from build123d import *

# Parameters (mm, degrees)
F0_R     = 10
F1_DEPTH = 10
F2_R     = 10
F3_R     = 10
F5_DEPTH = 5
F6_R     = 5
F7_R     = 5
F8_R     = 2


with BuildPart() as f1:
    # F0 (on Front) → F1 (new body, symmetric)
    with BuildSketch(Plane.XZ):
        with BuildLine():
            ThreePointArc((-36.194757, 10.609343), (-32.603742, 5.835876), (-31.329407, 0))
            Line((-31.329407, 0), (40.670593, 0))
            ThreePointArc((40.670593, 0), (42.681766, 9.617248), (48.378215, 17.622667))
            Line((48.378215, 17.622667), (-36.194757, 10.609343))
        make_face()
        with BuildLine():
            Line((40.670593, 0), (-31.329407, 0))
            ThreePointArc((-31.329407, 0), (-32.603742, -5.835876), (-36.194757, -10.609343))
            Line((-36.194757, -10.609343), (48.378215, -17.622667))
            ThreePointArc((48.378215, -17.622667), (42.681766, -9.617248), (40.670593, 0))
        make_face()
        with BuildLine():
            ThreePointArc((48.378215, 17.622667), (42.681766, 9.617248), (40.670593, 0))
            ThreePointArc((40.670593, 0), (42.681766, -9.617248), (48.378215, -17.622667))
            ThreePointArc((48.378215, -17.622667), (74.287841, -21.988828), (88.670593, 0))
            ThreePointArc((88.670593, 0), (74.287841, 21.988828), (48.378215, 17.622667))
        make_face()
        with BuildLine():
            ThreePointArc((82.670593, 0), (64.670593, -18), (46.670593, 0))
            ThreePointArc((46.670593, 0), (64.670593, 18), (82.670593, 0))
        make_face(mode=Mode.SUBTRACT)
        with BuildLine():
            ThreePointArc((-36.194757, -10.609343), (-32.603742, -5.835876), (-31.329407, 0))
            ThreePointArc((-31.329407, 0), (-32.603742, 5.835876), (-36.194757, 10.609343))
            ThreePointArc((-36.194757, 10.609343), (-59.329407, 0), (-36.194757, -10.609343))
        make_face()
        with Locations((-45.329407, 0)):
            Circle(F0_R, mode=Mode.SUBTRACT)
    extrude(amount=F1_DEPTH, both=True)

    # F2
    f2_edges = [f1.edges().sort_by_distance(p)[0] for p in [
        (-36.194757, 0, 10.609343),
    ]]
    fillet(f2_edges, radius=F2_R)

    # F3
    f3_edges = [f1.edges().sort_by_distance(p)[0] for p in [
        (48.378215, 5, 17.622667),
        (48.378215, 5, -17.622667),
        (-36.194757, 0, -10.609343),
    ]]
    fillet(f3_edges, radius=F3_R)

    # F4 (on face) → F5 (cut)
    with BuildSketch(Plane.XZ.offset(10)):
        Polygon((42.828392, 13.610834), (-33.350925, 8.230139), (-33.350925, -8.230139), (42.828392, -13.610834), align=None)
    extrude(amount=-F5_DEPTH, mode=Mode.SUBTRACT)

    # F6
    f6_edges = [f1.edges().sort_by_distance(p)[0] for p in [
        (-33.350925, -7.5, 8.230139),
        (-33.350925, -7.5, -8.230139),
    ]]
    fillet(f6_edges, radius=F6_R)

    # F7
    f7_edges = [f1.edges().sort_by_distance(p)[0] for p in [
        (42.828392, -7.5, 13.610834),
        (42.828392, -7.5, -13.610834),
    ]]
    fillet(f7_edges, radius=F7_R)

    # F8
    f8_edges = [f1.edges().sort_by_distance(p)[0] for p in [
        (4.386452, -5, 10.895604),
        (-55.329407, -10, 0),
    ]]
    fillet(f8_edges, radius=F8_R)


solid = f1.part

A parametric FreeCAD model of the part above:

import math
import FreeCAD as App
import Part
import Sketcher
Q = App.Units.Quantity


def edges_at(feature, points):
    """Names of the edges that pass closest to the given points."""
    edges = feature.Shape.Edges
    near = lambda p: min(range(len(edges)), key=lambda i: edges[i].distToShape(Part.Vertex(*p))[0])
    return sorted({f"Edge{near(p) + 1}" for p in points})


def add_polygon(sketch, points):
    """Adds a closed chain of lines whose ends are joined by coincident constraints."""
    first, n = sketch.GeometryCount, len(points)
    for a, b in zip(points, points[1:] + points[:1]):
        sketch.addGeometry(Part.LineSegment(App.Vector(*a, 0), App.Vector(*b, 0)), False)
    for i in range(n):
        sketch.addConstraint(Sketcher.Constraint("Coincident", first + i, 2, first + (i + 1) % n, 1))

doc = App.newDocument("Part")
body = doc.addObject("PartDesign::Body", "Body")

# Sketch on XZ plane
sketch1 = body.newObject("Sketcher::SketchObject", "Sketch")
sketch1.AttachmentSupport = (doc.getObject("XZ_Plane"), [""])
sketch1.MapMode = "FlatFace"
sketch1.addGeometry([
    Part.LineSegment(App.Vector(48, 18, 0), App.Vector(-36, 11, 0)),  # 0
    Part.ArcOfCircle(Part.Circle(App.Vector(-45, 0, 0), App.Vector(0, 0, 1), 14), math.radians(49), math.radians(311)),  # 1
    Part.LineSegment(App.Vector(-36, -11, 0), App.Vector(48, -18, 0)),  # 2
    Part.ArcOfCircle(Part.Circle(App.Vector(65, 0, 0), App.Vector(0, 0, 1), 24), math.radians(-133), math.radians(0)),  # 3
    Part.ArcOfCircle(Part.Circle(App.Vector(65, 0, 0), App.Vector(0, 0, 1), 24), math.radians(0), math.radians(133)),  # 4
    Part.Circle(App.Vector(-45, 0, 0), App.Vector(0, 0, 1), 10),  # 5
    Part.Circle(App.Vector(65, 0, 0), App.Vector(0, 0, 1), 18),  # 6
], False)
sketch1.addConstraint([
    Sketcher.Constraint("Coincident", 0, 2, 1, 1),
    Sketcher.Constraint("Coincident", 1, 2, 2, 1),
    Sketcher.Constraint("Coincident", 2, 2, 3, 1),
    Sketcher.Constraint("Tangent", 3, 2, 4, 1),
    Sketcher.Constraint("Coincident", 4, 2, 0, 1),
    Sketcher.Constraint("Coincident", 5, 3, 1, 3),
    Sketcher.Constraint("Coincident", 6, 3, 3, 3),
    Sketcher.Constraint("Equal", 3, 4),
    Sketcher.Constraint("Symmetric", 0, 2, 1, 2, -1),
    Sketcher.Constraint("Symmetric", 2, 2, 4, 2, -1),
    Sketcher.Constraint("PointOnObject", 3, 2, -1),
    Sketcher.Constraint("Diameter", 5, Q("20 mm")),
    Sketcher.Constraint("Diameter", 6, Q("36 mm")),
    Sketcher.Constraint("Radius", 1, Q("14 mm")),
    Sketcher.Constraint("Radius", 3, Q("23.999999 mm")),
    Sketcher.Constraint("DistanceX", 1, 3, 3, 3, Q("110.000001 mm")),
    Sketcher.Constraint("Distance", 0, Q("84.863268 mm")),
    Sketcher.Constraint("DistanceX", 5, 3, 0, 2, Q("9.13465 mm")),
    Sketcher.Constraint("DistanceX", 1, 3, -1, 1, Q("45.329407 mm")),
])
pad1 = body.newObject("PartDesign::Pad", "Pad")
pad1.Profile = sketch1
pad1.Length = 20
pad1.Midplane = True
doc.recompute()

fillet = body.newObject("PartDesign::Fillet", "Fillet")
fillet.Base = (pad1, edges_at(pad1, [(-36.195, 0, 10.609)]))
fillet.Radius = 10
doc.recompute()

fillet2 = body.newObject("PartDesign::Fillet", "Fillet001")
fillet2.Base = (fillet, edges_at(fillet, [(48.378, 0, 17.623), (48.378, 0, -17.623), (-36.195, 0, -10.609)]))
fillet2.Radius = 10

# Sketch on XZ plane
sketch2 = body.newObject("Sketcher::SketchObject", "Sketch001")
sketch2.AttachmentSupport = (doc.getObject("XZ_Plane"), [""])
sketch2.MapMode = "FlatFace"
sketch2.AttachmentOffset = App.Placement(App.Vector(0, 0, 10), App.Rotation())
add_polygon(sketch2, [(43, 14), (-33, 8), (-33, -8), (43, -14)])  # lines 0-3
sketch2.addConstraint([
    Sketcher.Constraint("Vertical", 1),
    Sketcher.Constraint("Vertical", 3),
    Sketcher.Constraint("Equal", 0, 2),
    Sketcher.Constraint("DistanceY", 3, 1, 3, 2, Q("27.221668 mm")),
    Sketcher.Constraint("DistanceY", 1, 2, 1, 1, Q("16.460278 mm")),
    Sketcher.Constraint("DistanceY", -1, 1, 0, 2, Q("8.230139 mm")),
    Sketcher.Constraint("Distance", 0, Q("76.369105 mm")),
    Sketcher.Constraint("DistanceX", 0, 2, -1, 1, Q("33.350925 mm")),
])
pocket1 = body.newObject("PartDesign::Pocket", "Pocket")
pocket1.Profile = sketch2
pocket1.Length = 5
doc.recompute()

fillet3 = body.newObject("PartDesign::Fillet", "Fillet002")
fillet3.Base = (pocket1, edges_at(pocket1, [(-33.351, -7.5, 8.23), (-33.351, -7.5, -8.23)]))
fillet3.Radius = 5
doc.recompute()

fillet4 = body.newObject("PartDesign::Fillet", "Fillet003")
fillet4.Base = (fillet3, edges_at(fillet3, [(42.828, -7.5, 13.611), (42.828, -7.5, -13.611)]))
fillet4.Radius = 5
doc.recompute()

fillet5 = body.newObject("PartDesign::Fillet", "Fillet004")
fillet5.Base = (fillet4, edges_at(fillet4, [(4.386, -5, 10.896), (-55.329, -10, 0)]))
fillet5.Radius = 2

doc.recompute()
